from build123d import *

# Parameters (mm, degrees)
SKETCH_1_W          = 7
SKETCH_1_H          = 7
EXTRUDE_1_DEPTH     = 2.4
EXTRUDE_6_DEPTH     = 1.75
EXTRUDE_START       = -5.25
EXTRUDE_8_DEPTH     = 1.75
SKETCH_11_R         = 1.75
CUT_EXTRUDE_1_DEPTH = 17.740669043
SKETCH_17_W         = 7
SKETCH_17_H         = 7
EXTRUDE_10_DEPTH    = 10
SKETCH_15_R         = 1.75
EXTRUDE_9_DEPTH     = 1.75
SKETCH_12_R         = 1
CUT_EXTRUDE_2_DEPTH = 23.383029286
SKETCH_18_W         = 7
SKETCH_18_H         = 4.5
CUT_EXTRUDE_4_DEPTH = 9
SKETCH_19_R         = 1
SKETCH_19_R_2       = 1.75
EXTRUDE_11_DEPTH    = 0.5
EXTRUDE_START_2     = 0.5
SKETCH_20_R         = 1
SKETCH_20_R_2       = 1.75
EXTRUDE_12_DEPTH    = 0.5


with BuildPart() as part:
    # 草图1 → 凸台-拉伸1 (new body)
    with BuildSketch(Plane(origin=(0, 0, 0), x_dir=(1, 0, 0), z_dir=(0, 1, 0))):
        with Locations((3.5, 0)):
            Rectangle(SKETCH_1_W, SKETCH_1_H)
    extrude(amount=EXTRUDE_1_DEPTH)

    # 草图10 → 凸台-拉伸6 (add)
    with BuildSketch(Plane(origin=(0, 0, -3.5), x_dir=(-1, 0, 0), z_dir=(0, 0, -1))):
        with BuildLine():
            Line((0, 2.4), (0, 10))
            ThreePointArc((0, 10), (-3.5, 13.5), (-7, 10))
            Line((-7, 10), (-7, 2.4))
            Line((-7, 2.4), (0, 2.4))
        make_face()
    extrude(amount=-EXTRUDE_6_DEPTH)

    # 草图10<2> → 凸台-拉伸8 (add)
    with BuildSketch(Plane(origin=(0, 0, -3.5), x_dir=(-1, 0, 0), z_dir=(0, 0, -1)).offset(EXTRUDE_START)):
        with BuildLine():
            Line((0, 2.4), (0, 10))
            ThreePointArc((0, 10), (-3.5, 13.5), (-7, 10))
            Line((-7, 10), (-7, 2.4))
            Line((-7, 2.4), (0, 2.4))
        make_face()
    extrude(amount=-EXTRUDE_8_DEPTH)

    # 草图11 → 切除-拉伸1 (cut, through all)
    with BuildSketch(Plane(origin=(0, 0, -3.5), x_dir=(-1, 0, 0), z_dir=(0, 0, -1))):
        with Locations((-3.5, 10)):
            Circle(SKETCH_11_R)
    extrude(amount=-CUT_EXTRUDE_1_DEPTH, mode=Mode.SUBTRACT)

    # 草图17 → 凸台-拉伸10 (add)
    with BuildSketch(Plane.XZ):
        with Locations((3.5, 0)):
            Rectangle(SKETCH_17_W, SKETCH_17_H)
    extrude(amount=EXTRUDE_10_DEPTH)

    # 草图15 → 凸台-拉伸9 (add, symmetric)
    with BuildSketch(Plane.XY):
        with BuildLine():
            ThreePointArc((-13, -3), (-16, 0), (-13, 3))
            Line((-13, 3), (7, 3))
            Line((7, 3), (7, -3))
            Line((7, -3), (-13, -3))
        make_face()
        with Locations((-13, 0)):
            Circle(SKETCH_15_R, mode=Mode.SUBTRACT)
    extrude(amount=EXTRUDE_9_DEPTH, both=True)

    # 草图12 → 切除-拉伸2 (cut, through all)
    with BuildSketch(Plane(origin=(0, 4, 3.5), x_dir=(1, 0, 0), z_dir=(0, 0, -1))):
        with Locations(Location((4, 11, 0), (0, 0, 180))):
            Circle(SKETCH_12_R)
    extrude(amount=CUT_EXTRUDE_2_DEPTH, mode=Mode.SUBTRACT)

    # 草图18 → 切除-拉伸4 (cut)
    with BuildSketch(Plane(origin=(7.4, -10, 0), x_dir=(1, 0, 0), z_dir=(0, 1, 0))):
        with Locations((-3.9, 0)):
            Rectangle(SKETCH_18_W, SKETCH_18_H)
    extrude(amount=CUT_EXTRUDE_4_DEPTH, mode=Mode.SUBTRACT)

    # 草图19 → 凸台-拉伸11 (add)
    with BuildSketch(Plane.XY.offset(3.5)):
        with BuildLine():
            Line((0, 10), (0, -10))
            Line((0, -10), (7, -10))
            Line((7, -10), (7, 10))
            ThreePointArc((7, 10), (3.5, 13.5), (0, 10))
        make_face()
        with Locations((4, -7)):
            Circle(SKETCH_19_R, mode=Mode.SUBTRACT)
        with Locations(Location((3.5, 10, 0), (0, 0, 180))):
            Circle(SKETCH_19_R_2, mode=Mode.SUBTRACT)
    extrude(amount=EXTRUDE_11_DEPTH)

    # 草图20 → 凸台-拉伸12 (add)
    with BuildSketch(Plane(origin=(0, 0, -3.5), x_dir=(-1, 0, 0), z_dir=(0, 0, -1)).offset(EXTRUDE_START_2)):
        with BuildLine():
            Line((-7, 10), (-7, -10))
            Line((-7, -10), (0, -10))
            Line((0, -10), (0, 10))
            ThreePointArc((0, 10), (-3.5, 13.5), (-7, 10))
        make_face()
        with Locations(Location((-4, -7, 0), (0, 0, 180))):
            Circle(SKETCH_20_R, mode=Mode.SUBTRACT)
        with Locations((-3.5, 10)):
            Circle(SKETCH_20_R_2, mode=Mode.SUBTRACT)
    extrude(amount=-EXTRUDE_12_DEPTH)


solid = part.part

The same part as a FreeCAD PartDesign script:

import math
import FreeCAD as App
import Part
import Sketcher

V = App.Vector


def add_polygon(sketch, points):
    """Adds a closed chain of lines whose ends are joined by coincident constraints."""
    first, n = sketch.GeometryCount, len(points)
    for a, b in zip(points, points[1:] + points[:1]):
        sketch.addGeometry(Part.LineSegment(App.Vector(*a, 0), App.Vector(*b, 0)), False)
    for i in range(n):
        sketch.addConstraint(Sketcher.Constraint("Coincident", first + i, 2, first + (i + 1) % n, 1))

doc = App.newDocument("Part")
params = doc.addObject("Spreadsheet::Sheet", "Params")
for row, (alias, value) in enumerate([
    ("sketch1_width", "7 mm"),
    ("pad1_length", "2.4 mm"),
    ("sketch2_radius", "3.5 mm"),
    ("sketch2_height", "7.6 mm"),
    ("pad2_length", "1.75 mm"),
    ("sketch3_radius", "3.5 mm"),
    ("sketch3_height", "7.6 mm"),
    ("pad3_length", "1.75 mm"),
    ("sketch4_diameter", "3.5 mm"),
    ("sketch5_width", "7 mm"),
    ("pad4_length", "10 mm"),
    ("sketch6_radius", "3 mm"),
    ("sketch6_diameter", "3.5 mm"),
    ("sketch6_width", "20 mm"),
    ("pad5_length", "3.5 mm"),
    ("sketch7_diameter", "2 mm"),
    ("sketch8_width", "7 mm"),
    ("sketch8_height", "4.5 mm"),
    ("pocket3_length", "9 mm"),
    ("sketch9_diameter", "2 mm"),
    ("sketch9_diameter2", "3.5 mm"),
    ("sketch9_radius", "3.5 mm"),
    ("sketch9_height", "20 mm"),
    ("pad6_length", "0.5 mm"),
    ("sketch10_diameter", "2 mm"),
    ("sketch10_diameter2", "3.5 mm"),
    ("sketch10_radius", "3.5 mm"),
    ("sketch10_height", "20 mm"),
    ("pad7_length", "0.5 mm"),
], start=1):
    params.set(f"A{row}", alias)
    params.set(f"B{row}", "=" + value)
    params.setAlias(f"B{row}", alias)

body = doc.addObject("PartDesign::Body", "Body")

sketch1 = body.newObject("Sketcher::SketchObject", "Sketch")
sketch1.AttachmentSupport = (doc.getObject("XZ_Plane"), [""])
sketch1.MapMode = "FlatFace"
add_polygon(sketch1, [(0, -3.5), (0, 3.5), (7, 3.5), (7, -3.5)])
sketch1.addConstraint(Sketcher.Constraint("Vertical", 0))
sketch1.addConstraint(Sketcher.Constraint("Horizontal", 1))
sketch1.addConstraint(Sketcher.Constraint("Vertical", 2))
sketch1.addConstraint(Sketcher.Constraint("Horizontal", 3))
sketch1.addConstraint(Sketcher.Constraint("Symmetric", 0, 2, 3, 2, -1, 1))
sketch1.addConstraint(Sketcher.Constraint("Equal", 3, 0))
sketch1.addConstraint(Sketcher.Constraint("DistanceX", 1, 1, 1, 2, 7.0))
sketch1.setExpression("Constraints[10]", "Params.sketch1_width")
pad1 = body.newObject("PartDesign::Pad", "Pad")
pad1.Profile = sketch1
pad1.setExpression("Length", "Params.pad1_length")
pad1.Reversed = True

sketch2 = body.newObject("Sketcher::SketchObject", "Sketch001")
sketch2.AttachmentSupport = (doc.getObject("XY_Plane"), [""])
sketch2.MapMode = "FlatFace"
sketch2.AttachmentOffset = App.Placement(V(0, 0, -3.5), App.Rotation())
sketch2.addGeometry(Part.LineSegment(V(0, 2.4, 0), V(0, 10, 0)), False)
sketch2.addGeometry(Part.ArcOfCircle(Part.Circle(V(3.5, 10, 0), V(0, 0, 1), 3.5), math.radians(0), math.radians(180)), False)
sketch2.addGeometry(Part.LineSegment(V(7, 10, 0), V(7, 2.4, 0)), False)
sketch2.addGeometry(Part.LineSegment(V(7, 2.4, 0), V(0, 2.4, 0)), False)
sketch2.addConstraint(Sketcher.Constraint("Tangent", 0, 2, 1, 2))
sketch2.addConstraint(Sketcher.Constraint("Tangent", 1, 1, 2, 1))
sketch2.addConstraint(Sketcher.Constraint("Coincident", 2, 2, 3, 1))
sketch2.addConstraint(Sketcher.Constraint("Coincident", 3, 2, 0, 1))
sketch2.addConstraint(Sketcher.Constraint("Vertical", 0))
sketch2.addConstraint(Sketcher.Constraint("Vertical", 2))
sketch2.addConstraint(Sketcher.Constraint("Horizontal", 3))
sketch2.addConstraint(Sketcher.Constraint("PointOnObject", 0, 2, -2))
sketch2.addConstraint(Sketcher.Constraint("Radius", 1, 3.5))
sketch2.addConstraint(Sketcher.Constraint("DistanceY", 0, 1, 0, 2, 7.6))
sketch2.addConstraint(Sketcher.Constraint("DistanceY", -1, 1, 1, 3, 10.0))
sketch2.setExpression("Constraints[8]", "Params.sketch2_radius")
sketch2.setExpression("Constraints[9]", "Params.sketch2_height")
pad2 = body.newObject("PartDesign::Pad", "Pad001")
pad2.Profile = sketch2
pad2.setExpression("Length", "Params.pad2_length")

sketch3 = body.newObject("Sketcher::SketchObject", "Sketch002")
sketch3.AttachmentSupport = (doc.getObject("XY_Plane"), [""])
sketch3.MapMode = "FlatFace"
sketch3.AttachmentOffset = App.Placement(V(0, 0, 1.75), App.Rotation())
sketch3.addGeometry(Part.LineSegment(V(0, 2.4, 0), V(0, 10, 0)), False)
sketch3.addGeometry(Part.ArcOfCircle(Part.Circle(V(3.5, 10, 0), V(0, 0, 1), 3.5), math.radians(0), math.radians(180)), False)
sketch3.addGeometry(Part.LineSegment(V(7, 10, 0), V(7, 2.4, 0)), False)
sketch3.addGeometry(Part.LineSegment(V(7, 2.4, 0), V(0, 2.4, 0)), False)
sketch3.addConstraint(Sketcher.Constraint("Tangent", 0, 2, 1, 2))
sketch3.addConstraint(Sketcher.Constraint("Tangent", 1, 1, 2, 1))
sketch3.addConstraint(Sketcher.Constraint("Coincident", 2, 2, 3, 1))
sketch3.addConstraint(Sketcher.Constraint("Coincident", 3, 2, 0, 1))
sketch3.addConstraint(Sketcher.Constraint("Vertical", 0))
sketch3.addConstraint(Sketcher.Constraint("Vertical", 2))
sketch3.addConstraint(Sketcher.Constraint("Horizontal", 3))
sketch3.addConstraint(Sketcher.Constraint("PointOnObject", 0, 2, -2))
sketch3.addConstraint(Sketcher.Constraint("Radius", 1, 3.5))
sketch3.addConstraint(Sketcher.Constraint("DistanceY", 0, 1, 0, 2, 7.6))
sketch3.addConstraint(Sketcher.Constraint("DistanceY", -1, 1, 1, 3, 10.0))
sketch3.setExpression("Constraints[8]", "Params.sketch3_radius")
sketch3.setExpression("Constraints[9]", "Params.sketch3_height")
pad3 = body.newObject("PartDesign::Pad", "Pad002")
pad3.Profile = sketch3
pad3.setExpression("Length", "Params.pad3_length")

sketch4 = body.newObject("Sketcher::SketchObject", "Sketch003")
sketch4.AttachmentSupport = (doc.getObject("XY_Plane"), [""])
sketch4.MapMode = "FlatFace"
sketch4.AttachmentOffset = App.Placement(V(0, 0, -3.5), App.Rotation())
sketch4.addGeometry(Part.Circle(V(3.5, 10, 0), V(0, 0, 1), 1.75), False)
sketch4.addConstraint(Sketcher.Constraint("Diameter", 0, 3.5))
sketch4.addConstraint(Sketcher.Constraint("DistanceY", -1, 1, 0, 3, 10.0))
sketch4.addConstraint(Sketcher.Constraint("DistanceX", -1, 1, 0, 3, 3.5))
sketch4.setExpression("Constraints[0]", "Params.sketch4_diameter")
pocket1 = body.newObject("PartDesign::Pocket", "Pocket")
pocket1.Profile = sketch4
pocket1.Type = "ThroughAll"
pocket1.Reversed = True

sketch5 = body.newObject("Sketcher::SketchObject", "Sketch004")
sketch5.AttachmentSupport = (doc.getObject("XZ_Plane"), [""])
sketch5.MapMode = "FlatFace"
add_polygon(sketch5, [(0, 3.5), (0, -3.5), (7, -3.5), (7, 3.5)])
sketch5.addConstraint(Sketcher.Constraint("Vertical", 0))
sketch5.addConstraint(Sketcher.Constraint("Horizontal", 1))
sketch5.addConstraint(Sketcher.Constraint("Vertical", 2))
sketch5.addConstraint(Sketcher.Constraint("Horizontal", 3))
sketch5.addConstraint(Sketcher.Constraint("Symmetric", 0, 2, 3, 2, -1, 1))
sketch5.addConstraint(Sketcher.Constraint("Equal", 3, 0))
sketch5.addConstraint(Sketcher.Constraint("DistanceX", 1, 1, 1, 2, 7.0))
sketch5.setExpression("Constraints[10]", "Params.sketch5_width")
pad4 = body.newObject("PartDesign::Pad", "Pad003")
pad4.Profile = sketch5
pad4.setExpression("Length", "Params.pad4_length")

sketch6 = body.newObject("Sketcher::SketchObject", "Sketch005")
sketch6.AttachmentSupport = (doc.getObject("XY_Plane"), [""])
sketch6.MapMode = "FlatFace"
sketch6.addGeometry(Part.ArcOfCircle(Part.Circle(V(-13, 0, 0), V(0, 0, 1), 3), math.radians(90), math.radians(270)), False)
sketch6.addGeometry(Part.LineSegment(V(-13, -3, 0), V(7, -3, 0)), False)
sketch6.addGeometry(Part.LineSegment(V(7, -3, 0), V(7, 3, 0)), False)
sketch6.addGeometry(Part.LineSegment(V(7, 3, 0), V(-13, 3, 0)), False)
sketch6.addGeometry(Part.Circle(V(-13, 0, 0), V(0, 0, 1), 1.75), False)
sketch6.addConstraint(Sketcher.Constraint("Tangent", 0, 2, 1, 1))
sketch6.addConstraint(Sketcher.Constraint("Coincident", 1, 2, 2, 1))
sketch6.addConstraint(Sketcher.Constraint("Coincident", 2, 2, 3, 1))
sketch6.addConstraint(Sketcher.Constraint("Tangent", 3, 2, 0, 1))
sketch6.addConstraint(Sketcher.Constraint("Horizontal", 1))
sketch6.addConstraint(Sketcher.Constraint("Vertical", 2))
sketch6.addConstraint(Sketcher.Constraint("Horizontal", 3))
sketch6.addConstraint(Sketcher.Constraint("Coincident", 4, 3, 0, 3))
sketch6.addConstraint(Sketcher.Constraint("PointOnObject", 0, 3, -1))
sketch6.addConstraint(Sketcher.Constraint("Radius", 0, 3.0))
sketch6.addConstraint(Sketcher.Constraint("Diameter", 4, 3.5))
sketch6.addConstraint(Sketcher.Constraint("DistanceX", 1, 1, 1, 2, 20.0))
sketch6.addConstraint(Sketcher.Constraint("DistanceX", 0, 3, -1, 1, 13.0))
sketch6.setExpression("Constraints[9]", "Params.sketch6_radius")
sketch6.setExpression("Constraints[10]", "Params.sketch6_diameter")
sketch6.setExpression("Constraints[11]", "Params.sketch6_width")
pad5 = body.newObject("PartDesign::Pad", "Pad004")
pad5.Profile = sketch6
pad5.setExpression("Length", "Params.pad5_length")
pad5.Midplane = True

sketch7 = body.newObject("Sketcher::SketchObject", "Sketch006")
sketch7.AttachmentSupport = (doc.getObject("XY_Plane"), [""])
sketch7.MapMode = "FlatFace"
sketch7.AttachmentOffset = App.Placement(V(0, 0, 3.5), App.Rotation())
sketch7.addGeometry(Part.Circle(V(4, -7, 0), V(0, 0, 1), 1), False)
sketch7.addConstraint(Sketcher.Constraint("Diameter", 0, 2.0))
sketch7.addConstraint(Sketcher.Constraint("DistanceX", -1, 1, 0, 3, 4.0))
sketch7.addConstraint(Sketcher.Constraint("DistanceY", 0, 3, -1, 1, 7.0))
sketch7.setExpression("Constraints[0]", "Params.sketch7_diameter")
pocket2 = body.newObject("PartDesign::Pocket", "Pocket001")
pocket2.Profile = sketch7
pocket2.Type = "ThroughAll"

sketch8 = body.newObject("Sketcher::SketchObject", "Sketch007")
sketch8.AttachmentSupport = (doc.getObject("XZ_Plane"), [""])
sketch8.MapMode = "FlatFace"
sketch8.AttachmentOffset = App.Placement(V(0, 0, 10), App.Rotation())
add_polygon(sketch8, [(0, -2.25), (0, 2.25), (7, 2.25), (7, -2.25)])
sketch8.addConstraint(Sketcher.Constraint("Vertical", 0))
sketch8.addConstraint(Sketcher.Constraint("Horizontal", 1))
sketch8.addConstraint(Sketcher.Constraint("Vertical", 2))
sketch8.addConstraint(Sketcher.Constraint("Horizontal", 3))
sketch8.addConstraint(Sketcher.Constraint("Symmetric", 0, 2, 3, 2, -1, 1))
sketch8.addConstraint(Sketcher.Constraint("DistanceX", 1, 1, 1, 2, 7.0))
sketch8.addConstraint(Sketcher.Constraint("DistanceY", 0, 1, 0, 2, 4.5))
sketch8.setExpression("Constraints[9]", "Params.sketch8_width")
sketch8.setExpression("Constraints[10]", "Params.sketch8_height")
pocket3 = body.newObject("PartDesign::Pocket", "Pocket002")
pocket3.Profile = sketch8
pocket3.setExpression("Length", "Params.pocket3_length")

sketch9 = body.newObject("Sketcher::SketchObject", "Sketch008")
sketch9.AttachmentSupport = (doc.getObject("XY_Plane"), [""])
sketch9.MapMode = "FlatFace"
sketch9.AttachmentOffset = App.Placement(V(0, 0, 3.5), App.Rotation())
sketch9.addGeometry(Part.LineSegment(V(0, 10, 0), V(0, -10, 0)), False)
sketch9.addGeometry(Part.LineSegment(V(0, -10, 0), V(7, -10, 0)), False)
sketch9.addGeometry(Part.LineSegment(V(7, -10, 0), V(7, 10, 0)), False)
sketch9.addGeometry(Part.ArcOfCircle(Part.Circle(V(3.5, 10, 0), V(0, 0, 1), 3.5), math.radians(0), math.radians(180)), False)
sketch9.addGeometry(Part.Circle(V(4, -7, 0), V(0, 0, 1), 1), False)
sketch9.addGeometry(Part.Circle(V(3.5, 10, 0), V(0, 0, 1), 1.75), False)
sketch9.addConstraint(Sketcher.Constraint("Coincident", 0, 2, 1, 1))
sketch9.addConstraint(Sketcher.Constraint("Coincident", 1, 2, 2, 1))
sketch9.addConstraint(Sketcher.Constraint("Tangent", 2, 2, 3, 1))
sketch9.addConstraint(Sketcher.Constraint("Tangent", 3, 2, 0, 1))
sketch9.addConstraint(Sketcher.Constraint("Vertical", 0))
sketch9.addConstraint(Sketcher.Constraint("Horizontal", 1))
sketch9.addConstraint(Sketcher.Constraint("Vertical", 2))
sketch9.addConstraint(Sketcher.Constraint("Coincident", 5, 3, 3, 3))
sketch9.addConstraint(Sketcher.Constraint("Symmetric", 0, 2, 3, 2, -1, 1))
sketch9.addConstraint(Sketcher.Constraint("Diameter", 4, 2.0))
sketch9.addConstraint(Sketcher.Constraint("Diameter", 5, 3.5))
sketch9.addConstraint(Sketcher.Constraint("Radius", 3, 3.5))
sketch9.addConstraint(Sketcher.Constraint("DistanceY", 0, 2, 0, 1, 20.0))
sketch9.addConstraint(Sketcher.Constraint("DistanceX", -1, 1, 4, 3, 4.0))
sketch9.addConstraint(Sketcher.Constraint("DistanceY", 4, 3, -1, 1, 7.0))
sketch9.setExpression("Constraints[9]", "Params.sketch9_diameter")
sketch9.setExpression("Constraints[10]", "Params.sketch9_diameter2")
sketch9.setExpression("Constraints[11]", "Params.sketch9_radius")
sketch9.setExpression("Constraints[12]", "Params.sketch9_height")
pad6 = body.newObject("PartDesign::Pad", "Pad005")
pad6.Profile = sketch9
pad6.setExpression("Length", "Params.pad6_length")

sketch10 = body.newObject("Sketcher::SketchObject", "Sketch009")
sketch10.AttachmentSupport = (doc.getObject("XY_Plane"), [""])
sketch10.MapMode = "FlatFace"
sketch10.AttachmentOffset = App.Placement(V(0, 0, -4), App.Rotation())
sketch10.addGeometry(Part.LineSegment(V(7, 10, 0), V(7, -10, 0)), False)
sketch10.addGeometry(Part.LineSegment(V(7, -10, 0), V(0, -10, 0)), False)
sketch10.addGeometry(Part.LineSegment(V(0, -10, 0), V(0, 10, 0)), False)
sketch10.addGeometry(Part.ArcOfCircle(Part.Circle(V(3.5, 10, 0), V(0, 0, 1), 3.5), math.radians(0), math.radians(180)), False)
sketch10.addGeometry(Part.Circle(V(4, -7, 0), V(0, 0, 1), 1), False)
sketch10.addGeometry(Part.Circle(V(3.5, 10, 0), V(0, 0, 1), 1.75), False)
sketch10.addConstraint(Sketcher.Constraint("Coincident", 0, 2, 1, 1))
sketch10.addConstraint(Sketcher.Constraint("Coincident", 1, 2, 2, 1))
sketch10.addConstraint(Sketcher.Constraint("Tangent", 2, 2, 3, 2))
sketch10.addConstraint(Sketcher.Constraint("Tangent", 3, 1, 0, 1))
sketch10.addConstraint(Sketcher.Constraint("Vertical", 0))
sketch10.addConstraint(Sketcher.Constraint("Horizontal", 1))
sketch10.addConstraint(Sketcher.Constraint("Vertical", 2))
sketch10.addConstraint(Sketcher.Constraint("Coincident", 5, 3, 3, 3))
sketch10.addConstraint(Sketcher.Constraint("Symmetric", 1, 2, 2, 2, -1, 1))
sketch10.addConstraint(Sketcher.Constraint("Diameter", 4, 2.0))
sketch10.addConstraint(Sketcher.Constraint("Diameter", 5, 3.5))
sketch10.addConstraint(Sketcher.Constraint("Radius", 3, 3.5))
sketch10.addConstraint(Sketcher.Constraint("DistanceY", 0, 2, 0, 1, 20.0))
sketch10.addConstraint(Sketcher.Constraint("DistanceX", -1, 1, 4, 3, 4.0))
sketch10.addConstraint(Sketcher.Constraint("DistanceY", 4, 3, -1, 1, 7.0))
sketch10.setExpression("Constraints[9]", "Params.sketch10_diameter")
sketch10.setExpression("Constraints[10]", "Params.sketch10_diameter2")
sketch10.setExpression("Constraints[11]", "Params.sketch10_radius")
sketch10.setExpression("Constraints[12]", "Params.sketch10_height")
pad7 = body.newObject("PartDesign::Pad", "Pad006")
pad7.Profile = sketch10
pad7.setExpression("Length", "Params.pad7_length")

doc.recompute()
